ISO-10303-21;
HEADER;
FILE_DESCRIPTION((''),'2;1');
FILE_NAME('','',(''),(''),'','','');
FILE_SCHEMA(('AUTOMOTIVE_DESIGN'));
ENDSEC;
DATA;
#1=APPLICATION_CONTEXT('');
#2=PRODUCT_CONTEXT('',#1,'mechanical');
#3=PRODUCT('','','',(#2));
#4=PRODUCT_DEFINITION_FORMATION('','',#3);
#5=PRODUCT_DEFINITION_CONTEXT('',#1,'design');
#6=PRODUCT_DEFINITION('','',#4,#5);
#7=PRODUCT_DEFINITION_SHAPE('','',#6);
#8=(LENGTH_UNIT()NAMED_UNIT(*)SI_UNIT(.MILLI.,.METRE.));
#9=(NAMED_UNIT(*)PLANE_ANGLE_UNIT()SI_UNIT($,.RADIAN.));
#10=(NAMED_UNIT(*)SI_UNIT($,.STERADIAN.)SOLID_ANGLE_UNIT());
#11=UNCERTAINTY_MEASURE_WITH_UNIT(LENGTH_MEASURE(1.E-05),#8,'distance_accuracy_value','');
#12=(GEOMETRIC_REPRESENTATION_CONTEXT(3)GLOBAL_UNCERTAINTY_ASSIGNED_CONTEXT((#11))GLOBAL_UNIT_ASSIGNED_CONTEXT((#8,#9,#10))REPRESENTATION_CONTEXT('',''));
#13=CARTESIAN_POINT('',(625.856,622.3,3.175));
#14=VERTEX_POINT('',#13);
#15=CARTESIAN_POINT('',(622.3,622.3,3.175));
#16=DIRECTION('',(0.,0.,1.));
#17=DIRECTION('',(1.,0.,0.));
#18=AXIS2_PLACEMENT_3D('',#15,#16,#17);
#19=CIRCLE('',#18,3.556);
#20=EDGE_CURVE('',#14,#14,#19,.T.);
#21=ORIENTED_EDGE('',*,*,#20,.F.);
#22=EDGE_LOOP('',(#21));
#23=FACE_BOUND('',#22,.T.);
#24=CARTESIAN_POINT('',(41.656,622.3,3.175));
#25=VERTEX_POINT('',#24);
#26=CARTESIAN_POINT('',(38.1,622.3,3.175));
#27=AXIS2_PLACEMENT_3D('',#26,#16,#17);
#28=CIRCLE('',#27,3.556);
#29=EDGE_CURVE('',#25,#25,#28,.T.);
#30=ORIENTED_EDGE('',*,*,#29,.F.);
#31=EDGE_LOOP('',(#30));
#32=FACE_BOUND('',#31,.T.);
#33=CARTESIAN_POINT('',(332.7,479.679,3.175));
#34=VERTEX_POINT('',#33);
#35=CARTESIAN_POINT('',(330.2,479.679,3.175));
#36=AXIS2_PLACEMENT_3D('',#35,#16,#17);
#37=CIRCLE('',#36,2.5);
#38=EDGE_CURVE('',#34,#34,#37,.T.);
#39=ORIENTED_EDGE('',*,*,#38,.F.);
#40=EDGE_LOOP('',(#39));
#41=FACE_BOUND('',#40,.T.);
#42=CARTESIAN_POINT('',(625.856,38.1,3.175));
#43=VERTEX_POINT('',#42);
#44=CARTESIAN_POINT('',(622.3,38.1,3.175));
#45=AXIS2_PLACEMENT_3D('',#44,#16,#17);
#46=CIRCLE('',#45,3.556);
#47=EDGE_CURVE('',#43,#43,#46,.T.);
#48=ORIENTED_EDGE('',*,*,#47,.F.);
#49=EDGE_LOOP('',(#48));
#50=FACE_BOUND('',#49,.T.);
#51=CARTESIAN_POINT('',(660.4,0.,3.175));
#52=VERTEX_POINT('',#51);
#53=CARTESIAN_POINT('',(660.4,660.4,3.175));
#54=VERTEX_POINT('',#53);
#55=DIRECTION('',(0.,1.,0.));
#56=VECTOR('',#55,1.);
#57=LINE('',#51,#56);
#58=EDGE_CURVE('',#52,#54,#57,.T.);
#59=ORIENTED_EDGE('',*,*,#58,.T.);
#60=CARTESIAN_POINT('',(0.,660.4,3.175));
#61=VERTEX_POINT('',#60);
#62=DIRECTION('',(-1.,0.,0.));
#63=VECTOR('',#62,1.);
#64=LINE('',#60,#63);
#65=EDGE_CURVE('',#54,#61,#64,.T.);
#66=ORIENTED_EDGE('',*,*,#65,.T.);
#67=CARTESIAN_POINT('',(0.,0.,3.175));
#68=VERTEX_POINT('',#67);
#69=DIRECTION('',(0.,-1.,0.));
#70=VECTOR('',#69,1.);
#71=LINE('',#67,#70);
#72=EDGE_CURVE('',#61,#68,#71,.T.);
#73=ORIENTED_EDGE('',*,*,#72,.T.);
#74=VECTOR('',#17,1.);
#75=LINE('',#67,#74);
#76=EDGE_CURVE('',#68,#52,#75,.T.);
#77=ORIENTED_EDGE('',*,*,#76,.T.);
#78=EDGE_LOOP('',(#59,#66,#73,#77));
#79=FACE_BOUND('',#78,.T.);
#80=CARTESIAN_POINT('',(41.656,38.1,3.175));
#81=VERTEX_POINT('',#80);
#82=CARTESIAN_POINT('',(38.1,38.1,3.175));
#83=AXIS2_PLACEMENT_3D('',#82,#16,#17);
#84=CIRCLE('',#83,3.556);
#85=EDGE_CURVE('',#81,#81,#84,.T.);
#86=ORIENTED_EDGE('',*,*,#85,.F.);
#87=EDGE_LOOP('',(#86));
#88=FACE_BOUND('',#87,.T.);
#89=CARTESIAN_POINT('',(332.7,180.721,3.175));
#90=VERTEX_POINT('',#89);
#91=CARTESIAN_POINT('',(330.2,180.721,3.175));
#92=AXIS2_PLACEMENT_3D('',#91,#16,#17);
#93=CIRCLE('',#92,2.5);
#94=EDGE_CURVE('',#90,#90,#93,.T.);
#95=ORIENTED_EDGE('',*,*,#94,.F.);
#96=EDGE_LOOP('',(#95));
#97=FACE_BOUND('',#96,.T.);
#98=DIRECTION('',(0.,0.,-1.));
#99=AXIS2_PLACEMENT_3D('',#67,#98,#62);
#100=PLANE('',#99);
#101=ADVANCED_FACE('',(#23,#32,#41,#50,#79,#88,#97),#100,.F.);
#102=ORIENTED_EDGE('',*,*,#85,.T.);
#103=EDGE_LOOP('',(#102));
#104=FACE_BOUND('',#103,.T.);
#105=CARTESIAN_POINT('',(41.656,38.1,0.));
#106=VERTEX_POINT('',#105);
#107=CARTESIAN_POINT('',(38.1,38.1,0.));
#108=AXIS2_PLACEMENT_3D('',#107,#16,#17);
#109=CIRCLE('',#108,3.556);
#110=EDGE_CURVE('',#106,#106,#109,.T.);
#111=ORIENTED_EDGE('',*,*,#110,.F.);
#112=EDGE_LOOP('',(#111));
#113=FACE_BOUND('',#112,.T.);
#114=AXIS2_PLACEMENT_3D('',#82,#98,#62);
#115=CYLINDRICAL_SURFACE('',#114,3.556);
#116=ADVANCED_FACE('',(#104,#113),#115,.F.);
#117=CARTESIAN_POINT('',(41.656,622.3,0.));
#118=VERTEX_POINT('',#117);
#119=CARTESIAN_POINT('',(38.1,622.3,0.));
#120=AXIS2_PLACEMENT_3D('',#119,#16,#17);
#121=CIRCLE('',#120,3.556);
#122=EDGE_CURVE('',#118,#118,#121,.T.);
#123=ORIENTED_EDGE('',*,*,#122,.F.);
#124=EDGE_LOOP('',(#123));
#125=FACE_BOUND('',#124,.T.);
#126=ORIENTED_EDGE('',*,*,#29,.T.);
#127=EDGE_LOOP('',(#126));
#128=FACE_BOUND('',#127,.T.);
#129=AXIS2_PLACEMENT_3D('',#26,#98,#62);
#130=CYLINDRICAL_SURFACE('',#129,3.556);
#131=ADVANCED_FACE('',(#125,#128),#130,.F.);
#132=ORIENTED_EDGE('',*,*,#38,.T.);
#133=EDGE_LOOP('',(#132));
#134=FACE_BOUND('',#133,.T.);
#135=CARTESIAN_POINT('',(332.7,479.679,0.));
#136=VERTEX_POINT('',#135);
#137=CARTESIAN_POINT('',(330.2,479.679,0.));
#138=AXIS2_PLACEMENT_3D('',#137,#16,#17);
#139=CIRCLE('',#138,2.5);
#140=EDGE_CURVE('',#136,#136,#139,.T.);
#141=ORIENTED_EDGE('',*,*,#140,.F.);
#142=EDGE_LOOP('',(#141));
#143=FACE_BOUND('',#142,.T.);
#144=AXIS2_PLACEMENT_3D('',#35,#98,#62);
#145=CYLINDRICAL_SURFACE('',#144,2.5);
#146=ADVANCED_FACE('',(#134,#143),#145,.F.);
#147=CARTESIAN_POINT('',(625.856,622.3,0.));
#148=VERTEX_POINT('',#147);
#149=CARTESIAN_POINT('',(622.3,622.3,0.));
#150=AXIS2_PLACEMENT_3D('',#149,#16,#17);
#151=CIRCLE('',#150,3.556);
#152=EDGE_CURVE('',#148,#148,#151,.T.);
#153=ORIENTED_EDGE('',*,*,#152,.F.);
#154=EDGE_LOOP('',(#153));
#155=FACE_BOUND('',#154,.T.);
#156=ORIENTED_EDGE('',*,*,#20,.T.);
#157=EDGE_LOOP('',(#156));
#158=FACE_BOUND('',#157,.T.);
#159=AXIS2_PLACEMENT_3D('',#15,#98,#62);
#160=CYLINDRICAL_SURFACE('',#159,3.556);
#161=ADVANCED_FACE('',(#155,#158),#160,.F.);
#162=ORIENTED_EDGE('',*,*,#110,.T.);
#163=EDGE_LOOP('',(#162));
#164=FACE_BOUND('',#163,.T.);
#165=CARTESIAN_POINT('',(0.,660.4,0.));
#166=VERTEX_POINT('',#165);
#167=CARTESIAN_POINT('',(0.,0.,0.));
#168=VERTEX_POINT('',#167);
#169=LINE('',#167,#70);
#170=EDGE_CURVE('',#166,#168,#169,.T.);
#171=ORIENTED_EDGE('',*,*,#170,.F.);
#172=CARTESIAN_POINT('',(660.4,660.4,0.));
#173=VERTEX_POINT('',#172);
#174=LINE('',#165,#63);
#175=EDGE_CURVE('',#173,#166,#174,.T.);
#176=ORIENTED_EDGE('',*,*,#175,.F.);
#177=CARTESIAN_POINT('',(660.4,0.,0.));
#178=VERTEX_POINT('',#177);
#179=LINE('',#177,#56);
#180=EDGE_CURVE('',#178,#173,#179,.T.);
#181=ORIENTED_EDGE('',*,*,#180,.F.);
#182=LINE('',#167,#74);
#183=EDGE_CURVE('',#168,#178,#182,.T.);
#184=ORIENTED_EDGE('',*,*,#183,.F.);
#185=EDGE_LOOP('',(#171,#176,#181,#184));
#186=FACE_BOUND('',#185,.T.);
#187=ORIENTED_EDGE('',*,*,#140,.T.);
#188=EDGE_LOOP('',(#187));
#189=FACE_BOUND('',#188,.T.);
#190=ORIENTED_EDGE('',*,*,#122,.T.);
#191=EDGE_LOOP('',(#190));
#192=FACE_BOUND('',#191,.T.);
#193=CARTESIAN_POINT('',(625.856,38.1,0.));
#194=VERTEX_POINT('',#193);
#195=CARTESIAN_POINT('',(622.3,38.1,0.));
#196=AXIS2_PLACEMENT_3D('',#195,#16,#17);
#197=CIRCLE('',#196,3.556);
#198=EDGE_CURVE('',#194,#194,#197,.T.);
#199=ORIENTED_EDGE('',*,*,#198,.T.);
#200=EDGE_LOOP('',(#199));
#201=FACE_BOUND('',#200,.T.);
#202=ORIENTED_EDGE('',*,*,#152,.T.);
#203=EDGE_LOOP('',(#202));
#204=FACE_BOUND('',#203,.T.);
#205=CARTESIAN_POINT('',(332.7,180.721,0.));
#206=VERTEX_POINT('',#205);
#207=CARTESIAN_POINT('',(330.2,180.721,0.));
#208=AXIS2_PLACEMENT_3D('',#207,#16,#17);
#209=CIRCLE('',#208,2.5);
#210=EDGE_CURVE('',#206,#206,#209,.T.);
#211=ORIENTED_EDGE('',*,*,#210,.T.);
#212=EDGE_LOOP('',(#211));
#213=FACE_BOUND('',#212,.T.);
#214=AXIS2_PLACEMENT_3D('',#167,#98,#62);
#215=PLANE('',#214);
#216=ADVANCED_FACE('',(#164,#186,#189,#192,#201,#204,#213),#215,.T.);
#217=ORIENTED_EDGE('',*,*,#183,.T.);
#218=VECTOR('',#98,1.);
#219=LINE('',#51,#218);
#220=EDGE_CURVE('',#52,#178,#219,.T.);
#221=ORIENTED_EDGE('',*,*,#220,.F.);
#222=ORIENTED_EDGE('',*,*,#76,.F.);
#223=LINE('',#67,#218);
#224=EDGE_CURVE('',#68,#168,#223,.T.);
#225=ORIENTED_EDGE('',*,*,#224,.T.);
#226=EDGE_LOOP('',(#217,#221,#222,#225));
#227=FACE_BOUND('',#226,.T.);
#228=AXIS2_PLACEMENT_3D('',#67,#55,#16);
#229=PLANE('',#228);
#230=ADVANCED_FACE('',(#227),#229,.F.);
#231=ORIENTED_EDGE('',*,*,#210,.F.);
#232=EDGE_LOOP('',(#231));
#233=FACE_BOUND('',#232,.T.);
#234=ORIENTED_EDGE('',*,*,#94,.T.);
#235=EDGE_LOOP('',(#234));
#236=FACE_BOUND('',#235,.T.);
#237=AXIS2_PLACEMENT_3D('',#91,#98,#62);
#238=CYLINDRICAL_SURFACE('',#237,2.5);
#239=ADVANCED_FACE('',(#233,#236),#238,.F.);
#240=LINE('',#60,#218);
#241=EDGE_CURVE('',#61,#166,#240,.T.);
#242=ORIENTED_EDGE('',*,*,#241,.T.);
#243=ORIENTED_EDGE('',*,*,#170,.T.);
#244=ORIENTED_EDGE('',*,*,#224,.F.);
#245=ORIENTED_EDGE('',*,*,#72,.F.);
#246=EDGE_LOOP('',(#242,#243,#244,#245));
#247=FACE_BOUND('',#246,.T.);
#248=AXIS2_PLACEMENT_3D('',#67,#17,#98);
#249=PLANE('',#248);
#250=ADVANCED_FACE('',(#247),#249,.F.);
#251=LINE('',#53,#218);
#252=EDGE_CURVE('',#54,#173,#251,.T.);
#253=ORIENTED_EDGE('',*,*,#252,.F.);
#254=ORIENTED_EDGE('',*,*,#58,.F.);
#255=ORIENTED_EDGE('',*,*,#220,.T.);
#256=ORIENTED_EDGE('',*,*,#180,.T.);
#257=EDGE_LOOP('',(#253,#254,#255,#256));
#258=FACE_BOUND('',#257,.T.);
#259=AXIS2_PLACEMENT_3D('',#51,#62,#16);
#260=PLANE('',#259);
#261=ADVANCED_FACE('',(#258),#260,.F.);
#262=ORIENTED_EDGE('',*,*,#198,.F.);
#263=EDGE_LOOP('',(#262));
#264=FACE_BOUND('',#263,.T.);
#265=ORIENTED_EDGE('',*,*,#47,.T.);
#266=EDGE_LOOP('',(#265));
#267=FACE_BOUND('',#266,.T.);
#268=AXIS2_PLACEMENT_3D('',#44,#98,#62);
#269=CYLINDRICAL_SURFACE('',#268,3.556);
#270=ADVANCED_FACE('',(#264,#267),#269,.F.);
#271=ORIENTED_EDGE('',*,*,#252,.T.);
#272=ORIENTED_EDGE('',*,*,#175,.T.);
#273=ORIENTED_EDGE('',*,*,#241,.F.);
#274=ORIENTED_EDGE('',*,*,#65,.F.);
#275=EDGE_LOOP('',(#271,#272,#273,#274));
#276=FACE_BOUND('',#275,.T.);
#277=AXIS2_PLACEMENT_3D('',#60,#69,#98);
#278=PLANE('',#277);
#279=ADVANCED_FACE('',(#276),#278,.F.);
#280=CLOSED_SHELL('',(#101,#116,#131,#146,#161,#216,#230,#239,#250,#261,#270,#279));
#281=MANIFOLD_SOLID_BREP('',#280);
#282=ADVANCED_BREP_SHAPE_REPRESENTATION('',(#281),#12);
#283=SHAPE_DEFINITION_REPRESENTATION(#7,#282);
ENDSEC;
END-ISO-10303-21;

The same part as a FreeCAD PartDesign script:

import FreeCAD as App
import Part
import Sketcher
from FreeCAD import Vector
Q = App.Units.Quantity

doc = App.newDocument("Part")
body = doc.addObject("PartDesign::Body", "Body")

# Sketch on XY plane
sketch1 = body.newObject("Sketcher::SketchObject", "Sketch")
sketch1.AttachmentSupport = (doc.getObject("XY_Plane"), [""])
sketch1.MapMode = "FlatFace"
sketch1.addGeometry([
    Part.LineSegment(Vector(0, 660.4, 0), Vector(0, 0, 0)),  # 0
    Part.LineSegment(Vector(0, 0, 0), Vector(660.4, 0, 0)),  # 1
    Part.LineSegment(Vector(660.4, 0, 0), Vector(660.4, 660.4, 0)),  # 2
    Part.LineSegment(Vector(660.4, 660.4, 0), Vector(0, 660.4, 0)),  # 3
    Part.Circle(Vector(38.1, 38.1, 0), Vector(0, 0, 1), 3.6),  # 4
    Part.Circle(Vector(330.2, 180.7, 0), Vector(0, 0, 1), 2.5),  # 5
    Part.Circle(Vector(622.3, 38.1, 0), Vector(0, 0, 1), 3.6),  # 6
    Part.Circle(Vector(38.1, 622.3, 0), Vector(0, 0, 1), 3.6),  # 7
    Part.Circle(Vector(330.2, 479.7, 0), Vector(0, 0, 1), 2.5),  # 8
    Part.Circle(Vector(622.3, 622.3, 0), Vector(0, 0, 1), 3.6),  # 9
], False)
sketch1.addConstraint([
    Sketcher.Constraint("Coincident", 0, 2, 1, 1),
    Sketcher.Constraint("Coincident", 1, 2, 2, 1),
    Sketcher.Constraint("Coincident", 2, 2, 3, 1),
    Sketcher.Constraint("Coincident", 3, 2, 0, 1),
    Sketcher.Constraint("Vertical", 0),
    Sketcher.Constraint("Horizontal", 1),
    Sketcher.Constraint("Vertical", 2),
    Sketcher.Constraint("Horizontal", 3),
    Sketcher.Constraint("Coincident", 0, 2, -1, 1),
    Sketcher.Constraint("Equal", 4, 6),
    Sketcher.Constraint("Equal", 6, 7),
    Sketcher.Constraint("Equal", 5, 8),
    Sketcher.Constraint("Equal", 7, 9),
    Sketcher.Constraint("Horizontal", 4, 3, 6, 3),
    Sketcher.Constraint("Horizontal", 7, 3, 9, 3),
    Sketcher.Constraint("Vertical", 4, 3, 7, 3),
    Sketcher.Constraint("Vertical", 5, 3, 8, 3),
    Sketcher.Constraint("Vertical", 6, 3, 9, 3),
    Sketcher.Constraint("Equal", 3, 0),
    Sketcher.Constraint("Diameter", 4, Q("0.28 in")),
    Sketcher.Constraint("DistanceX", 1, 1, 1, 2, Q("26 in")),
    Sketcher.Constraint("DistanceX", -1, 1, 5, 3, Q("13 in")),
    Sketcher.Constraint("DistanceX", 4, 3, 6, 3, Q("23 in")),
    Sketcher.Constraint("DistanceY", 4, 3, 7, 3, Q("23 in")),
    Sketcher.Constraint("DistanceX", -1, 1, 4, 3, Q("1.5 in")),
    Sketcher.Constraint("DistanceY", -1, 1, 4, 3, Q("1.5 in")),
    Sketcher.Constraint("Diameter", 5, 5.0),
    Sketcher.Constraint("DistanceY", 5, 3, 8, 3, Q("11.77 in")),
    Sketcher.Constraint("DistanceY", -1, 1, 5, 3, Q("7.115 in")),
])
pad1 = body.newObject("PartDesign::Pad", "Pad")
pad1.Profile = sketch1
pad1.Length = Q("0.125 in")

doc.recompute()
